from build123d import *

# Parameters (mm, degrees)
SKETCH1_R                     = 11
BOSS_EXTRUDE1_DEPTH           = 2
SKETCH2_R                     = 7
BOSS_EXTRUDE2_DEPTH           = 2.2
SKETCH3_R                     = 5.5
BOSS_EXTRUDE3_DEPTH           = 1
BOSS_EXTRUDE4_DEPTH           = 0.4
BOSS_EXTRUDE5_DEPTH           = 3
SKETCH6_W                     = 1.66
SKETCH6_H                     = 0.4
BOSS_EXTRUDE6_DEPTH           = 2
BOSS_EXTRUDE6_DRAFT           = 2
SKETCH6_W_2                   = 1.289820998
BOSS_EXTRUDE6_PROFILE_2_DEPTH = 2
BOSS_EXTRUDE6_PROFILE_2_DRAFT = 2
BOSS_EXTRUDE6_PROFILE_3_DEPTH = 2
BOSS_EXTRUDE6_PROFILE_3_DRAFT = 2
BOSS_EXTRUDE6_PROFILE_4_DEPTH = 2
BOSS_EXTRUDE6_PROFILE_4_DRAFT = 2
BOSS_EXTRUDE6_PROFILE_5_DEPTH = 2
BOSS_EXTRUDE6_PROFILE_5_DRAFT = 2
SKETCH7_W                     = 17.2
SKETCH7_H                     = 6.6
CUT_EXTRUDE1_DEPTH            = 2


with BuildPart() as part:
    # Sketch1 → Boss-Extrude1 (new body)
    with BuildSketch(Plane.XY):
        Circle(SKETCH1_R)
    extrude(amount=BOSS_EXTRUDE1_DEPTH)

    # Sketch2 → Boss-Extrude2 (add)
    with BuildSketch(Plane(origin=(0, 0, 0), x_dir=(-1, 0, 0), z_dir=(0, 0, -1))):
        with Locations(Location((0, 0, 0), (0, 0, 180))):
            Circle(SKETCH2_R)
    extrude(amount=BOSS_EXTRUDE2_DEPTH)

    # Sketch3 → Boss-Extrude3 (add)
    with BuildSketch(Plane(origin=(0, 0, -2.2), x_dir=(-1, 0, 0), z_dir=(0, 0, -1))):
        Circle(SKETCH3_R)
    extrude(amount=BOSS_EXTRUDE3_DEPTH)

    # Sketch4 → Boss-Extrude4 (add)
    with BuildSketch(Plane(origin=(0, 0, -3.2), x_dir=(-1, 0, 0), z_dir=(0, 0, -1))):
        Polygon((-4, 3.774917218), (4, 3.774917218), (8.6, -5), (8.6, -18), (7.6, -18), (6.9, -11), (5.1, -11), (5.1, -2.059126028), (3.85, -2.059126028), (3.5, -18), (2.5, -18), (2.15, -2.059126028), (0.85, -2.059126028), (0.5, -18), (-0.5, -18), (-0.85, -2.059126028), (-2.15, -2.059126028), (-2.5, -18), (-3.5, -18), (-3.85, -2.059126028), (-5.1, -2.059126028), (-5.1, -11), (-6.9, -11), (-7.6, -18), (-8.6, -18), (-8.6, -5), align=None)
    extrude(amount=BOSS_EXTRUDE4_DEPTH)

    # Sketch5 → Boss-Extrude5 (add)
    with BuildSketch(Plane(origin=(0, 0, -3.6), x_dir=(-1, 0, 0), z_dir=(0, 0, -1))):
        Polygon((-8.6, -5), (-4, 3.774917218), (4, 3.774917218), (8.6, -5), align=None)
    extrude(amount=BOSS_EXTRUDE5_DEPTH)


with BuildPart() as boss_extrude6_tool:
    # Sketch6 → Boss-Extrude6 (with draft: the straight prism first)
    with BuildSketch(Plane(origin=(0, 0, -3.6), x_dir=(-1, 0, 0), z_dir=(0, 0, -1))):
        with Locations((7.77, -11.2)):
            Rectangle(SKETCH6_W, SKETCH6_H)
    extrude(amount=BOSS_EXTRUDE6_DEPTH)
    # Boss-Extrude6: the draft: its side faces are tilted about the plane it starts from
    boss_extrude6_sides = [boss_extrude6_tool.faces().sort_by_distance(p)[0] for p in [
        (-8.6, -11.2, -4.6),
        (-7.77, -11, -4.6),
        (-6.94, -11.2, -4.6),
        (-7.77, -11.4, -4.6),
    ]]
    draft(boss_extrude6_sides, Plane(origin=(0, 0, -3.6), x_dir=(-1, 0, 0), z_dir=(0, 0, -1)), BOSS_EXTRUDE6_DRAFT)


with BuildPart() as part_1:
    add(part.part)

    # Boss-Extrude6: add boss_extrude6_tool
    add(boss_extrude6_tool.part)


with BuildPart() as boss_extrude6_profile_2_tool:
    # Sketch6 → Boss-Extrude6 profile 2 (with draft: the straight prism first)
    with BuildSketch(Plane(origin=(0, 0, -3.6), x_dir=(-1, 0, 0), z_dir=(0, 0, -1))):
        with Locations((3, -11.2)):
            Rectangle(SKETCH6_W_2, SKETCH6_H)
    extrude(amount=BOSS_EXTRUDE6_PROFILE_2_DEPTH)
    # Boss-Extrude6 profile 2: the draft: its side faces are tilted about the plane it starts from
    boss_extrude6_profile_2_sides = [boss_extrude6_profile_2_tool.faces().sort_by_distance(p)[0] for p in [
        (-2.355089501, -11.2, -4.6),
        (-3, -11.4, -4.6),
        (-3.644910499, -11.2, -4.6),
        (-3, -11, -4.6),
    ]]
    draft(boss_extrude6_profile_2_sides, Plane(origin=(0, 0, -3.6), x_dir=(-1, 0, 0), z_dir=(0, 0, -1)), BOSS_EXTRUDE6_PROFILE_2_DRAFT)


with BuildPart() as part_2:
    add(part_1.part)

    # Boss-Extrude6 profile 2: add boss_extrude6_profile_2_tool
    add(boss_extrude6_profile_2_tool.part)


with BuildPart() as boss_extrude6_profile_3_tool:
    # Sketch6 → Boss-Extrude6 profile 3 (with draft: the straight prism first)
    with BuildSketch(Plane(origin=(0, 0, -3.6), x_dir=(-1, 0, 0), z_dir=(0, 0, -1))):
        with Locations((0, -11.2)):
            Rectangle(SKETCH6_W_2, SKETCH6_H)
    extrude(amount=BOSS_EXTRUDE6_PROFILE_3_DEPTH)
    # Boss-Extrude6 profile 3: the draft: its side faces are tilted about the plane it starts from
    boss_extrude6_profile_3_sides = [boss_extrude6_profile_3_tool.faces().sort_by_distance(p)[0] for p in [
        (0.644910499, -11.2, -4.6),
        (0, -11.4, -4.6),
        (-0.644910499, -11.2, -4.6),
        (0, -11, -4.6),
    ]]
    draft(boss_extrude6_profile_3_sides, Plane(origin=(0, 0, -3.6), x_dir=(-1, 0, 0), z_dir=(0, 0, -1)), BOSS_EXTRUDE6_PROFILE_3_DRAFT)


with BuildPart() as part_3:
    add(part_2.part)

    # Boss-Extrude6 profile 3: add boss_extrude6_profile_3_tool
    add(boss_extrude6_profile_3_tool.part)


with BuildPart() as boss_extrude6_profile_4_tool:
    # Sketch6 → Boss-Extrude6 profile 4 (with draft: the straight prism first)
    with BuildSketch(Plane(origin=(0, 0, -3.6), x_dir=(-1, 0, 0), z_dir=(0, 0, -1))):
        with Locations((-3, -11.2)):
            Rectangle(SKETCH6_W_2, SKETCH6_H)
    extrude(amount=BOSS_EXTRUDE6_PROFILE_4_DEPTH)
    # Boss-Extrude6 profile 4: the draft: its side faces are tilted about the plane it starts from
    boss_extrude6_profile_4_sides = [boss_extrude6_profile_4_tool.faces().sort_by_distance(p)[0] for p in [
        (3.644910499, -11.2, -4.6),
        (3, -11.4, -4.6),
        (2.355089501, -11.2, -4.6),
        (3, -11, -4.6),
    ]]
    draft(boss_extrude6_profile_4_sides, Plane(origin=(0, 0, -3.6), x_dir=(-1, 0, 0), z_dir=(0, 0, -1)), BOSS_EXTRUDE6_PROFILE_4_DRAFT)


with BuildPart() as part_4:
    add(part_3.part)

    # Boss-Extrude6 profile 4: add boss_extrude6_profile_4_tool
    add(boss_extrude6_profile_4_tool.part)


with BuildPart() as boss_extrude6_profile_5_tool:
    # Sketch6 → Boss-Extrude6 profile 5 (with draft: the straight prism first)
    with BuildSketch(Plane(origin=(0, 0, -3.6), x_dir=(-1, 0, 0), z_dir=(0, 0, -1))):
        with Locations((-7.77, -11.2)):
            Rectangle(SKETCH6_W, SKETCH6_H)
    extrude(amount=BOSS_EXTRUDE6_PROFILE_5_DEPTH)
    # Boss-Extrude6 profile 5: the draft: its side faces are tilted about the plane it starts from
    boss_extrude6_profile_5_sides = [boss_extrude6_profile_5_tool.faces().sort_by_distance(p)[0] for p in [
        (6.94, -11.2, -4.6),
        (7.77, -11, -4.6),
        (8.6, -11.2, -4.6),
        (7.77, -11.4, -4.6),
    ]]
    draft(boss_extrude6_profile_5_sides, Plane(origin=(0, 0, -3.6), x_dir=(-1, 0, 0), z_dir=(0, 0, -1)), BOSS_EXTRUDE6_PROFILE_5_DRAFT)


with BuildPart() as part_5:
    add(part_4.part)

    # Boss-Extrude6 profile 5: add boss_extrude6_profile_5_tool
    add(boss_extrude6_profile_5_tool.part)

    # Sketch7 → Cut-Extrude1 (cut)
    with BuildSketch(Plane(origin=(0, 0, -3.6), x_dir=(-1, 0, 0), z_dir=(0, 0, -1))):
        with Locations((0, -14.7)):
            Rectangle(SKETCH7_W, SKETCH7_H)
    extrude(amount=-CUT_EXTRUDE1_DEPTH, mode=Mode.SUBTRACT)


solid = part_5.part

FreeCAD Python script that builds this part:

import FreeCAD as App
import Part
import Sketcher
from FreeCAD import Vector


def faces_at(feature, points):
    """Names of the faces that lie closest to the given points."""
    faces = feature.Shape.Faces
    near = lambda p: min(range(len(faces)), key=lambda i: faces[i].distToShape(Part.Vertex(*p))[0])
    return sorted({f"Face{near(p) + 1}" for p in points})


def add_polygon(sketch, points):
    """Adds a closed chain of lines whose ends are joined by coincident constraints."""
    first, n = sketch.GeometryCount, len(points)
    for a, b in zip(points, points[1:] + points[:1]):
        sketch.addGeometry(Part.LineSegment(App.Vector(*a, 0), App.Vector(*b, 0)), False)
    for i in range(n):
        sketch.addConstraint(Sketcher.Constraint("Coincident", first + i, 2, first + (i + 1) % n, 1))

doc = App.newDocument("Part")
body = doc.addObject("PartDesign::Body", "Body")

# Sketch on XY plane
sketch1 = body.newObject("Sketcher::SketchObject", "Sketch")
sketch1.AttachmentSupport = (doc.getObject("XY_Plane"), [""])
sketch1.MapMode = "FlatFace"
sketch1.addGeometry(Part.Circle(Vector(0, 0, 0), Vector(0, 0, 1), 11), False)
sketch1.addConstraint([
    Sketcher.Constraint("Coincident", 0, 3, -1, 1),
    Sketcher.Constraint("Diameter", 0, 22.0),
])
pad1 = body.newObject("PartDesign::Pad", "Pad")
pad1.Profile = sketch1
pad1.Length = 2

# Sketch on XY plane
sketch2 = body.newObject("Sketcher::SketchObject", "Sketch001")
sketch2.AttachmentSupport = (doc.getObject("XY_Plane"), [""])
sketch2.MapMode = "FlatFace"
sketch2.addGeometry(Part.Circle(Vector(0, 0, 0), Vector(0, 0, 1), 7), False)
sketch2.addConstraint([
    Sketcher.Constraint("Coincident", 0, 3, -1, 1),
    Sketcher.Constraint("Diameter", 0, 14.0),
])
pad2 = body.newObject("PartDesign::Pad", "Pad001")
pad2.Profile = sketch2
pad2.Length = 2.2
pad2.Reversed = True

# Sketch on XY plane
sketch3 = body.newObject("Sketcher::SketchObject", "Sketch002")
sketch3.AttachmentSupport = (doc.getObject("XY_Plane"), [""])
sketch3.MapMode = "FlatFace"
sketch3.AttachmentOffset = App.Placement(Vector(0, 0, -2.2), App.Rotation())
sketch3.addGeometry(Part.Circle(Vector(0, 0, 0), Vector(0, 0, 1), 6), False)
sketch3.addConstraint([
    Sketcher.Constraint("Coincident", 0, 3, -1, 1),
    Sketcher.Constraint("Diameter", 0, 11.0),
])
pad3 = body.newObject("PartDesign::Pad", "Pad002")
pad3.Profile = sketch3
pad3.Length = 1
pad3.Reversed = True

# Sketch on XY plane
sketch4 = body.newObject("Sketcher::SketchObject", "Sketch003")
sketch4.AttachmentSupport = (doc.getObject("XY_Plane"), [""])
sketch4.MapMode = "FlatFace"
sketch4.AttachmentOffset = App.Placement(Vector(0, 0, -3.2), App.Rotation())
add_polygon(sketch4, [(-4, 3.8), (4, 3.8), (8.6, -5), (8.6, -18), (7.6, -18), (6.9, -11), (5.1, -11), (5.1, -2.1), (3.9, -2.1), (3.5, -18), (2.5, -18), (2.1, -2.1), (0.8, -2.1), (0.5, -18), (-0.5, -18), (-0.8, -2.1), (-2.1, -2.1), (-2.5, -18), (-3.5, -18), (-3.9, -2.1), (-5.1, -2.1), (-5.1, -11), (-6.9, -11), (-7.6, -18), (-8.6, -18), (-8.6, -5)])  # lines 0-25
sketch4.addConstraint([
    Sketcher.Constraint("Horizontal", 0),
    Sketcher.Constraint("Vertical", 2),
    Sketcher.Constraint("Horizontal", 3),
    Sketcher.Constraint("Horizontal", 5),
    Sketcher.Constraint("Vertical", 6),
    Sketcher.Constraint("Horizontal", 7),
    Sketcher.Constraint("Horizontal", 9),
    Sketcher.Constraint("Horizontal", 11),
    Sketcher.Constraint("Horizontal", 13),
    Sketcher.Constraint("Horizontal", 15),
    Sketcher.Constraint("Horizontal", 17),
    Sketcher.Constraint("Horizontal", 19),
    Sketcher.Constraint("Vertical", 20),
    Sketcher.Constraint("Horizontal", 21),
    Sketcher.Constraint("Horizontal", 23),
    Sketcher.Constraint("Vertical", 24),
    Sketcher.Constraint("Symmetric", 11, 2, 14, 2, -2),
    Sketcher.Constraint("Symmetric", 9, 2, 16, 2, -2),
    Sketcher.Constraint("Symmetric", 7, 2, 18, 2, -2),
    Sketcher.Constraint("Symmetric", 5, 2, 20, 2, -2),
    Sketcher.Constraint("Symmetric", 3, 2, 22, 2, -2),
    Sketcher.Constraint("Symmetric", 1, 2, 24, 2, -2),
    Sketcher.Constraint("Parallel", 8, 12),
    Sketcher.Constraint("Parallel", 10, 14),
    Sketcher.Constraint("Parallel", 12, 16),
    Sketcher.Constraint("Parallel", 14, 18),
    Sketcher.Constraint("Horizontal", 3, 2, 8, 2),
    Sketcher.Constraint("Horizontal", 7, 2, 10, 2),
    Sketcher.Constraint("Horizontal", 9, 2, 12, 2),
    Sketcher.Constraint("Equal", 3, 9),
    Sketcher.Constraint("Equal", 9, 13),
    Sketcher.Constraint("Equal", 11, 15),
    Sketcher.Constraint("Equal", 5, 21),
    Sketcher.Constraint("Equal", 1, 25),
    Sketcher.Constraint("DistanceX", 0, 1, 0, 2, 8.0),
    Sketcher.Constraint("DistanceX", 3, 2, 3, 1, 1.0),
    Sketcher.Constraint("DistanceY", 2, 2, 2, 1, 13.0),
    Sketcher.Constraint("DistanceX", 5, 2, 5, 1, 1.8),
    Sketcher.Constraint("DistanceX", 11, 2, 11, 1, 1.3),
    Sketcher.Constraint("DistanceY", 1, 2, -1, 1, 5.0),
    Sketcher.Constraint("DistanceY", 4, 2, -1, 1, 11.0),
    Sketcher.Constraint("DistanceX", 11, 2, 7, 2, 3.0),
    Sketcher.Constraint("DistanceX", 7, 2, 7, 1, 1.25),
    Sketcher.Constraint("DistanceX", -1, 1, 1, 2, 8.6),
    Sketcher.Constraint("Distance", 1, 9.907531),
    Sketcher.Constraint("DistanceY", 6, 1, 6, 2, 8.940874),
])
pad4 = body.newObject("PartDesign::Pad", "Pad003")
pad4.Profile = sketch4
pad4.Length = 0.4
pad4.Reversed = True

# Sketch on XY plane
sketch5 = body.newObject("Sketcher::SketchObject", "Sketch004")
sketch5.AttachmentSupport = (doc.getObject("XY_Plane"), [""])
sketch5.MapMode = "FlatFace"
sketch5.AttachmentOffset = App.Placement(Vector(0, 0, -3.6), App.Rotation())
add_polygon(sketch5, [(4, 4), (9, -5), (-9, -5), (-4, 4)])  # lines 0-3
sketch5.addConstraint([
    Sketcher.Constraint("Horizontal", 1),
    Sketcher.Constraint("Horizontal", 3),
    Sketcher.Constraint("Equal", 0, 2),
    Sketcher.Constraint("DistanceX", 3, 1, 3, 2, 8.0),
    Sketcher.Constraint("DistanceX", 1, 2, 1, 1, 17.2),
    Sketcher.Constraint("DistanceY", 0, 2, -1, 1, 5.0),
    Sketcher.Constraint("DistanceX", 2, 2, -1, 1, 4.0),
    Sketcher.Constraint("Distance", 0, 9.907531),
])
pad5 = body.newObject("PartDesign::Pad", "Pad004")
pad5.Profile = sketch5
pad5.Length = 3
pad5.Reversed = True
body2 = doc.addObject("PartDesign::Body", "Body001")

# Sketch on XY plane
sketch6 = body2.newObject("Sketcher::SketchObject", "Sketch005")
sketch6.AttachmentSupport = (doc.getObject("XY_Plane001"), [""])
sketch6.MapMode = "FlatFace"
sketch6.AttachmentOffset = App.Placement(Vector(0, 0, -3.6), App.Rotation())
add_polygon(sketch6, [(-6.94, -11), (-6.94, -11.4), (-8.6, -11.4), (-8.6, -11)])  # lines 0-3
sketch6.addConstraint([
    Sketcher.Constraint("Vertical", 0),
    Sketcher.Constraint("Horizontal", 1),
    Sketcher.Constraint("Vertical", 2),
    Sketcher.Constraint("Horizontal", 3),
    Sketcher.Constraint("DistanceY", 0, 2, 0, 1, 0.4),
    Sketcher.Constraint("DistanceY", 2, 2, -1, 1, 11.0),
    Sketcher.Constraint("DistanceX", 1, 2, 1, 1, 1.66),
    Sketcher.Constraint("DistanceX", 1, 2, -1, 1, 8.6),
])
pad6 = body2.newObject("PartDesign::Pad", "Pad005")
pad6.Profile = sketch6
pad6.Length = 2
pad6.Reversed = True
doc.recompute()

datumplane = body2.newObject("PartDesign::Plane", "DatumPlane")
datumplane.AttachmentSupport = (doc.getObject("XY_Plane001"), [""])
datumplane.MapMode = "FlatFace"
datumplane.AttachmentOffset = App.Placement(Vector(0, 0, -3.6), App.Rotation())
draft = body2.newObject("PartDesign::Draft", "Draft")
draft.Base = (pad6, faces_at(pad6, [
    (-8.6, -11.2, -4.6),
    (-7.77, -11, -4.6),
    (-6.94, -11.2, -4.6),
    (-7.77, -11.4, -4.6),
]))
draft.NeutralPlane = (datumplane, [""])
draft.Angle = 2
draft.Reversed = True
doc.recompute()

boolean = body.newObject("PartDesign::Boolean", "Boolean")
boolean.Type = "Fuse"
boolean.addObjects([body2])
body3 = doc.addObject("PartDesign::Body", "Body002")

# Sketch on XY plane
sketch7 = body3.newObject("Sketcher::SketchObject", "Sketch006")
sketch7.AttachmentSupport = (doc.getObject("XY_Plane002"), [""])
sketch7.MapMode = "FlatFace"
sketch7.AttachmentOffset = App.Placement(Vector(0, 0, -3.6), App.Rotation())
add_polygon(sketch7, [(-2.36, -11), (-2.36, -11.4), (-3.64, -11.4), (-3.64, -11)])  # lines 0-3
sketch7.addConstraint([
    Sketcher.Constraint("Vertical", 0),
    Sketcher.Constraint("Horizontal", 1),
    Sketcher.Constraint("Vertical", 2),
    Sketcher.Constraint("Horizontal", 3),
    Sketcher.Constraint("DistanceY", 0, 2, 0, 1, 0.4),
    Sketcher.Constraint("DistanceY", 2, 2, -1, 1, 11.0),
    Sketcher.Constraint("DistanceX", 1, 2, 1, 1, 1.289821),
    Sketcher.Constraint("DistanceX", 0, 2, -1, 1, 2.35509),
])
pad7 = body3.newObject("PartDesign::Pad", "Pad006")
pad7.Profile = sketch7
pad7.Length = 2
pad7.Reversed = True
doc.recompute()

datumplane2 = body3.newObject("PartDesign::Plane", "DatumPlane001")
datumplane2.AttachmentSupport = (doc.getObject("XY_Plane002"), [""])
datumplane2.MapMode = "FlatFace"
datumplane2.AttachmentOffset = App.Placement(Vector(0, 0, -3.6), App.Rotation())
draft2 = body3.newObject("PartDesign::Draft", "Draft001")
draft2.Base = (pad7, faces_at(pad7, [
    (-2.355, -11.2, -4.6),
    (-3, -11.4, -4.6),
    (-3.645, -11.2, -4.6),
    (-3, -11, -4.6),
]))
draft2.NeutralPlane = (datumplane2, [""])
draft2.Angle = 2
draft2.Reversed = True
doc.recompute()

boolean2 = body.newObject("PartDesign::Boolean", "Boolean001")
boolean2.Type = "Fuse"
boolean2.addObjects([body3])
body4 = doc.addObject("PartDesign::Body", "Body003")

# Sketch on XY plane
sketch8 = body4.newObject("Sketcher::SketchObject", "Sketch007")
sketch8.AttachmentSupport = (doc.getObject("XY_Plane003"), [""])
sketch8.MapMode = "FlatFace"
sketch8.AttachmentOffset = App.Placement(Vector(0, 0, -3.6), App.Rotation())
add_polygon(sketch8, [(0.64, -11), (0.64, -11.4), (-0.64, -11.4), (-0.64, -11)])  # lines 0-3
sketch8.addConstraint([
    Sketcher.Constraint("Vertical", 0),
    Sketcher.Constraint("Horizontal", 1),
    Sketcher.Constraint("Vertical", 2),
    Sketcher.Constraint("Horizontal", 3),
    Sketcher.Constraint("DistanceY", 0, 2, 0, 1, 0.4),
    Sketcher.Constraint("DistanceY", 2, 2, -1, 1, 11.0),
    Sketcher.Constraint("DistanceX", 1, 2, 1, 1, 1.289821),
    Sketcher.Constraint("DistanceX", -1, 1, 0, 2, 0.64491),
])
pad8 = body4.newObject("PartDesign::Pad", "Pad007")
pad8.Profile = sketch8
pad8.Length = 2
pad8.Reversed = True
doc.recompute()

datumplane3 = body4.newObject("PartDesign::Plane", "DatumPlane002")
datumplane3.AttachmentSupport = (doc.getObject("XY_Plane003"), [""])
datumplane3.MapMode = "FlatFace"
datumplane3.AttachmentOffset = App.Placement(Vector(0, 0, -3.6), App.Rotation())
draft3 = body4.newObject("PartDesign::Draft", "Draft002")
draft3.Base = (pad8, faces_at(pad8, [
    (0.645, -11.2, -4.6),
    (0, -11.4, -4.6),
    (-0.645, -11.2, -4.6),
    (0, -11, -4.6),
]))
draft3.NeutralPlane = (datumplane3, [""])
draft3.Angle = 2
draft3.Reversed = True
doc.recompute()

boolean3 = body.newObject("PartDesign::Boolean", "Boolean002")
boolean3.Type = "Fuse"
boolean3.addObjects([body4])
body5 = doc.addObject("PartDesign::Body", "Body004")

# Sketch on XY plane
sketch9 = body5.newObject("Sketcher::SketchObject", "Sketch008")
sketch9.AttachmentSupport = (doc.getObject("XY_Plane004"), [""])
sketch9.MapMode = "FlatFace"
sketch9.AttachmentOffset = App.Placement(Vector(0, 0, -3.6), App.Rotation())
add_polygon(sketch9, [(3.64, -11), (3.64, -11.4), (2.36, -11.4), (2.36, -11)])  # lines 0-3
sketch9.addConstraint([
    Sketcher.Constraint("Vertical", 0),
    Sketcher.Constraint("Horizontal", 1),
    Sketcher.Constraint("Vertical", 2),
    Sketcher.Constraint("Horizontal", 3),
    Sketcher.Constraint("DistanceY", 0, 2, 0, 1, 0.4),
    Sketcher.Constraint("DistanceY", 2, 2, -1, 1, 11.0),
    Sketcher.Constraint("DistanceX", 1, 2, 1, 1, 1.289821),
    Sketcher.Constraint("DistanceX", -1, 1, 0, 2, 3.64491),
])
pad9 = body5.newObject("PartDesign::Pad", "Pad008")
pad9.Profile = sketch9
pad9.Length = 2
pad9.Reversed = True
doc.recompute()

datumplane4 = body5.newObject("PartDesign::Plane", "DatumPlane003")
datumplane4.AttachmentSupport = (doc.getObject("XY_Plane004"), [""])
datumplane4.MapMode = "FlatFace"
datumplane4.AttachmentOffset = App.Placement(Vector(0, 0, -3.6), App.Rotation())
draft4 = body5.newObject("PartDesign::Draft", "Draft003")
draft4.Base = (pad9, faces_at(pad9, [
    (3.645, -11.2, -4.6),
    (3, -11.4, -4.6),
    (2.355, -11.2, -4.6),
    (3, -11, -4.6),
]))
draft4.NeutralPlane = (datumplane4, [""])
draft4.Angle = 2
draft4.Reversed = True
doc.recompute()

boolean4 = body.newObject("PartDesign::Boolean", "Boolean003")
boolean4.Type = "Fuse"
boolean4.addObjects([body5])
body6 = doc.addObject("PartDesign::Body", "Body005")

# Sketch on XY plane
sketch10 = body6.newObject("Sketcher::SketchObject", "Sketch009")
sketch10.AttachmentSupport = (doc.getObject("XY_Plane005"), [""])
sketch10.MapMode = "FlatFace"
sketch10.AttachmentOffset = App.Placement(Vector(0, 0, -3.6), App.Rotation())
add_polygon(sketch10, [(8.6, -11), (8.6, -11.4), (6.94, -11.4), (6.94, -11)])  # lines 0-3
sketch10.addConstraint([
    Sketcher.Constraint("Vertical", 0),
    Sketcher.Constraint("Horizontal", 1),
    Sketcher.Constraint("Vertical", 2),
    Sketcher.Constraint("Horizontal", 3),
    Sketcher.Constraint("DistanceY", 0, 2, 0, 1, 0.4),
    Sketcher.Constraint("DistanceY", 2, 2, -1, 1, 11.0),
    Sketcher.Constraint("DistanceX", 1, 2, 1, 1, 1.66),
    Sketcher.Constraint("DistanceX", -1, 1, 0, 2, 8.6),
])
pad10 = body6.newObject("PartDesign::Pad", "Pad009")
pad10.Profile = sketch10
pad10.Length = 2
pad10.Reversed = True
doc.recompute()

datumplane5 = body6.newObject("PartDesign::Plane", "DatumPlane004")
datumplane5.AttachmentSupport = (doc.getObject("XY_Plane005"), [""])
datumplane5.MapMode = "FlatFace"
datumplane5.AttachmentOffset = App.Placement(Vector(0, 0, -3.6), App.Rotation())
draft5 = body6.newObject("PartDesign::Draft", "Draft004")
draft5.Base = (pad10, faces_at(pad10, [
    (6.94, -11.2, -4.6),
    (7.77, -11, -4.6),
    (8.6, -11.2, -4.6),
    (7.77, -11.4, -4.6),
]))
draft5.NeutralPlane = (datumplane5, [""])
draft5.Angle = 2
draft5.Reversed = True
doc.recompute()

boolean5 = body.newObject("PartDesign::Boolean", "Boolean004")
boolean5.Type = "Fuse"
boolean5.addObjects([body6])

# Sketch on XY plane
sketch11 = body.newObject("Sketcher::SketchObject", "Sketch010")
sketch11.AttachmentSupport = (doc.getObject("XY_Plane"), [""])
sketch11.MapMode = "FlatFace"
sketch11.AttachmentOffset = App.Placement(Vector(0, 0, -3.6), App.Rotation())
add_polygon(sketch11, [(9, -11), (9, -18), (-9, -18), (-9, -11)])  # lines 0-3
sketch11.addConstraint([
    Sketcher.Constraint("Vertical", 0),
    Sketcher.Constraint("Horizontal", 1),
    Sketcher.Constraint("Vertical", 2),
    Sketcher.Constraint("Horizontal", 3),
    Sketcher.Constraint("DistanceX", 1, 2, 1, 1, 17.2),
    Sketcher.Constraint("DistanceY", 0, 2, 0, 1, 6.6),
    Sketcher.Constraint("DistanceY", 0, 2, -1, 1, 18.0),
    Sketcher.Constraint("DistanceX", -1, 1, 0, 2, 8.6),
])
pocket1 = body.newObject("PartDesign::Pocket", "Pocket")
pocket1.Profile = sketch11
pocket1.Length = 2
pocket1.Reversed = True

doc.recompute()
